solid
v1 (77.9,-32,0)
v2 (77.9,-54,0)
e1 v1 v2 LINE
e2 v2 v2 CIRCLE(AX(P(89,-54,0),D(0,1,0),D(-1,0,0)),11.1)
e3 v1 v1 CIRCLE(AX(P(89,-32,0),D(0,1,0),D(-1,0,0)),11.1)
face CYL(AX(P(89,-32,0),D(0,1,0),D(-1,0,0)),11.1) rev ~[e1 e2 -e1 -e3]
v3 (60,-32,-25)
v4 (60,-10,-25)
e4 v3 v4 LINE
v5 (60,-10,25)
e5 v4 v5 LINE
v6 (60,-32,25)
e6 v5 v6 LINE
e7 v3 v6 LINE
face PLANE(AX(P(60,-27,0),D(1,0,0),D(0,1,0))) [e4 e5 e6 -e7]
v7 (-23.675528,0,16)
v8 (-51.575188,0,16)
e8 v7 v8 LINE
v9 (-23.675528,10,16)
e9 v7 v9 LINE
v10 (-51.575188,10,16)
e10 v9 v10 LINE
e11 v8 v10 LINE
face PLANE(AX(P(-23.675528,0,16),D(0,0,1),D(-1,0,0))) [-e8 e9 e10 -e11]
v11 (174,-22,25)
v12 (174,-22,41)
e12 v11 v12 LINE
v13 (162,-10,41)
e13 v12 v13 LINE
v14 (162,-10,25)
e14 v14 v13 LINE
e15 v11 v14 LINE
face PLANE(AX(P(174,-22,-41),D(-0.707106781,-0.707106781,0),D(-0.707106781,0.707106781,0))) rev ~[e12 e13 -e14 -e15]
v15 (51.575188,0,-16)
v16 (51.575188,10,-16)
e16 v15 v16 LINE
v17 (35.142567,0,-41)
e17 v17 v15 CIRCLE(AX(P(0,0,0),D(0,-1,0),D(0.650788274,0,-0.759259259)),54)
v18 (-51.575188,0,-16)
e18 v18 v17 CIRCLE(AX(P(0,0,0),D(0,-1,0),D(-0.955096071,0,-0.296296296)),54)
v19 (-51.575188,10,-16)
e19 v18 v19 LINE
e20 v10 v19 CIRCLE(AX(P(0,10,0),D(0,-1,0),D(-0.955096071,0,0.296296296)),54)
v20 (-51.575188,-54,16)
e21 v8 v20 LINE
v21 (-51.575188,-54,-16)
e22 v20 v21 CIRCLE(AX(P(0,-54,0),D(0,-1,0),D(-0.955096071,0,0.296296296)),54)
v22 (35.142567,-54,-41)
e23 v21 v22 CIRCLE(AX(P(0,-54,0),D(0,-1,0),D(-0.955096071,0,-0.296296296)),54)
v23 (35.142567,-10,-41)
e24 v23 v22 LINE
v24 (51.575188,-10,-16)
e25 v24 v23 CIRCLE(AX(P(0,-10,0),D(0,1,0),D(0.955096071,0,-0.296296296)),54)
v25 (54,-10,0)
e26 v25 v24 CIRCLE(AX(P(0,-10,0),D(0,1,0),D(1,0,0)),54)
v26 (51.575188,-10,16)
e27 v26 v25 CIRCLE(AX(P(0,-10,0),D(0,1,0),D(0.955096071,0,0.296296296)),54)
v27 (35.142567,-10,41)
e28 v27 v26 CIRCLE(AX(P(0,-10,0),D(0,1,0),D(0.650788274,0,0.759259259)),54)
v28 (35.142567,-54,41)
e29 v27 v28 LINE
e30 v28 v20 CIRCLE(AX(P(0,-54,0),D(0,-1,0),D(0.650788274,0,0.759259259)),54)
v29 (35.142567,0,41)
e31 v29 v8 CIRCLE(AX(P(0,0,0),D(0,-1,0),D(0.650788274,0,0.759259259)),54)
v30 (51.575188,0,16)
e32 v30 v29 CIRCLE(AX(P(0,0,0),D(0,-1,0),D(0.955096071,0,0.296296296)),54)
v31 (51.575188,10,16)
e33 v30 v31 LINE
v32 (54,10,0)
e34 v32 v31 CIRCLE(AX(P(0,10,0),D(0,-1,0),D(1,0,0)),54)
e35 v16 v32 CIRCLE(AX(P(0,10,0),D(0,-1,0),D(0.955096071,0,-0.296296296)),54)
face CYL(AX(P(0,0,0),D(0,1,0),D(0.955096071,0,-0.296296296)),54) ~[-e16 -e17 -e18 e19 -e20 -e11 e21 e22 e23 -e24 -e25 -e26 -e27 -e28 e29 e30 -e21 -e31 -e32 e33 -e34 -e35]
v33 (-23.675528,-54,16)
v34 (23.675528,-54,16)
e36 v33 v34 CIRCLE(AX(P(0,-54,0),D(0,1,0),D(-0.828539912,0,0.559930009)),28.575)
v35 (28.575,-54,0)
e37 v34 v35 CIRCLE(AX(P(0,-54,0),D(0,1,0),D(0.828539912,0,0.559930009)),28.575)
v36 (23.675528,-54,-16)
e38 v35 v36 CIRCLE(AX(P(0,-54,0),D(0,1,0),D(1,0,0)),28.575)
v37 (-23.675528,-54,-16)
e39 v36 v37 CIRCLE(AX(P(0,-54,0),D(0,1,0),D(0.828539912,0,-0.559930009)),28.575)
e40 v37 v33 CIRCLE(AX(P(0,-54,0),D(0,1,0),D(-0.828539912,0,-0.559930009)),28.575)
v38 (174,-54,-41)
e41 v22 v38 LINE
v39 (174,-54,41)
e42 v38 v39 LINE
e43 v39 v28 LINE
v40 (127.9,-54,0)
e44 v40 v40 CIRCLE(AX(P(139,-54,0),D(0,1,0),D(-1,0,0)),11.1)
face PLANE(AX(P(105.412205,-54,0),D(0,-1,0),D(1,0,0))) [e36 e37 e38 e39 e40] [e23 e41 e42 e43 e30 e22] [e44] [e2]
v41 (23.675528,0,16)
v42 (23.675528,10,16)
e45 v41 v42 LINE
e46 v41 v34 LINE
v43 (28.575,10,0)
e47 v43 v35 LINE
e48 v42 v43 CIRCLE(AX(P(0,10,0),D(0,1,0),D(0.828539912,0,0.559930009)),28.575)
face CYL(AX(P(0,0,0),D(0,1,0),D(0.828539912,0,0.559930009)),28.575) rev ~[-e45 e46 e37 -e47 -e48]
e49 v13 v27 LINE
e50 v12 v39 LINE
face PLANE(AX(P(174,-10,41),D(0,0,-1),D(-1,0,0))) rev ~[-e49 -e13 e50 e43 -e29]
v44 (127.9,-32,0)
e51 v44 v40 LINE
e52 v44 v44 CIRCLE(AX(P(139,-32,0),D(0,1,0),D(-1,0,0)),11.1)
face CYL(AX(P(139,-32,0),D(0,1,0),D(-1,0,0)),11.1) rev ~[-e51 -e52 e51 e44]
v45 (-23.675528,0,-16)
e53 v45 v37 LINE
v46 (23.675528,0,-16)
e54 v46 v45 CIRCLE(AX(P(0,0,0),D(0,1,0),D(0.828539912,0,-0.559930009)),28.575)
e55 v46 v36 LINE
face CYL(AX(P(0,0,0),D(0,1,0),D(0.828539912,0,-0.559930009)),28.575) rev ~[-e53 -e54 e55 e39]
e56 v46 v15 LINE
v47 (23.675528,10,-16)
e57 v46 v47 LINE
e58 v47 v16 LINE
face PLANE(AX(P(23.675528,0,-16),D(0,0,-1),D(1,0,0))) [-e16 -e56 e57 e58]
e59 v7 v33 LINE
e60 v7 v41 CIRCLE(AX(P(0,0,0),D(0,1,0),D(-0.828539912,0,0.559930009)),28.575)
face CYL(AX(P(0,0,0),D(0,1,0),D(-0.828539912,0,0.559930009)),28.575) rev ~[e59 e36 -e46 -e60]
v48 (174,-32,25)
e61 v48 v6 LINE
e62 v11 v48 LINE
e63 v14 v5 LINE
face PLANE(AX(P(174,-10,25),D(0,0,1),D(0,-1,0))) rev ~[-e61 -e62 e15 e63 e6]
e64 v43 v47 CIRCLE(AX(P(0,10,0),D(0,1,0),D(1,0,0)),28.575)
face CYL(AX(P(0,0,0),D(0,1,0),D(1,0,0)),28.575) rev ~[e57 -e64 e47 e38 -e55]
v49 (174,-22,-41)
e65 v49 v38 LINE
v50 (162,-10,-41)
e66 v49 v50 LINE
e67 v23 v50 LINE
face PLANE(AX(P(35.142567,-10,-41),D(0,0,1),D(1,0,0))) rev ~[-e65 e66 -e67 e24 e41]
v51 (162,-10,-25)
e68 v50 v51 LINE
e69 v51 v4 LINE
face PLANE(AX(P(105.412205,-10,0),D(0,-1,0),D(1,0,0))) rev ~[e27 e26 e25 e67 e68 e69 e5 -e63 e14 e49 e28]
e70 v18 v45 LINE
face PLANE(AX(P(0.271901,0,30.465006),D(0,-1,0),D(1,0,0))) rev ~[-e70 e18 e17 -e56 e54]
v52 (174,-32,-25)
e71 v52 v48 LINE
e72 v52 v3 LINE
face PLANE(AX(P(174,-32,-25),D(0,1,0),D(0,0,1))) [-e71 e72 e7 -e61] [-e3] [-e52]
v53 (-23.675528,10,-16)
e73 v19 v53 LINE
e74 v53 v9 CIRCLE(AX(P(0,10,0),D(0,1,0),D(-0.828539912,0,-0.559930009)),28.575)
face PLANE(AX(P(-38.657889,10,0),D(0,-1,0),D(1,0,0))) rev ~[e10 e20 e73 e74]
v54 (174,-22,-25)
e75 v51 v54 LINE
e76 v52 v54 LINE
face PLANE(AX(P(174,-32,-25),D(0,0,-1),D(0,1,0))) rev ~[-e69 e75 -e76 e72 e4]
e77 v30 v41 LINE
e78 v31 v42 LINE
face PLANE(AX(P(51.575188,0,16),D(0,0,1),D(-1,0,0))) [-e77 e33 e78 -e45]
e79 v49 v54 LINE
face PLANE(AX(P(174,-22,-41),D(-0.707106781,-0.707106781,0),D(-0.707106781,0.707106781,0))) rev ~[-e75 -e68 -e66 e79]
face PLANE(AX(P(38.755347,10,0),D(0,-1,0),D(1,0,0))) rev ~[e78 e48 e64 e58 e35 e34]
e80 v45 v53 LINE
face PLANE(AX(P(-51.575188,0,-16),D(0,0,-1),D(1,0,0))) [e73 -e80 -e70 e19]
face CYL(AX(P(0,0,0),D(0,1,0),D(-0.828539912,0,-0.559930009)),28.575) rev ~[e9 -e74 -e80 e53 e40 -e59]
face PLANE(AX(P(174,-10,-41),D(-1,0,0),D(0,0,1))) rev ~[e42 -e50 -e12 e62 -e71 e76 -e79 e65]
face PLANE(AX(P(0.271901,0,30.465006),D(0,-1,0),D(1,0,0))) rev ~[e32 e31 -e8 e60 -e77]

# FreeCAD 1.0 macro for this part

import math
import FreeCAD as App
import Part
import Sketcher

V = App.Vector
Q = App.Units.Quantity


def add_polygon(sketch, points):
    """Adds a closed chain of lines whose ends are joined by coincident constraints."""
    first, n = sketch.GeometryCount, len(points)
    for a, b in zip(points, points[1:] + points[:1]):
        sketch.addGeometry(Part.LineSegment(App.Vector(*a, 0), App.Vector(*b, 0)), False)
    for i in range(n):
        sketch.addConstraint(Sketcher.Constraint("Coincident", first + i, 2, first + (i + 1) % n, 1))

doc = App.newDocument("Part")
body = doc.addObject("PartDesign::Body", "Body")

sketch1 = body.newObject("Sketcher::SketchObject", "Sketch")
sketch1.AttachmentSupport = (doc.getObject("XZ_Plane"), [""])
sketch1.MapMode = "FlatFace"
sketch1.addGeometry([
    Part.ArcOfCircle(Part.Circle(V(0, 0, 0), V(0, 0, 1), 54), math.radians(-163), math.radians(-49)),
    Part.ArcOfCircle(Part.Circle(V(0, 0, 0), V(0, 0, 1), 54), math.radians(-49), math.radians(-17)),
    Part.ArcOfCircle(Part.Circle(V(0, 0, 0), V(0, 0, 1), 54), math.radians(-17.24), math.radians(0)),
    Part.ArcOfCircle(Part.Circle(V(0, 0, 0), V(0, 0, 1), 54), math.radians(0), math.radians(17.24)),
    Part.ArcOfCircle(Part.Circle(V(0, 0, 0), V(0, 0, 1), 54), math.radians(17), math.radians(49)),
    Part.ArcOfCircle(Part.Circle(V(0, 0, 0), V(0, 0, 1), 54), math.radians(49), math.radians(163)),
    Part.ArcOfCircle(Part.Circle(V(0, 0, 0), V(0, 0, 1), 54), math.radians(163), math.radians(197)),
    Part.ArcOfCircle(Part.Circle(V(0, 0, 0), V(0, 0, 1), 29), math.radians(34), math.radians(146)),
    Part.ArcOfCircle(Part.Circle(V(0, 0, 0), V(0, 0, 1), 29), math.radians(0), math.radians(34)),
    Part.ArcOfCircle(Part.Circle(V(0, 0, 0), V(0, 0, 1), 29), math.radians(-34), math.radians(0)),
    Part.ArcOfCircle(Part.Circle(V(0, 0, 0), V(0, 0, 1), 29), math.radians(-146), math.radians(-34)),
    Part.ArcOfCircle(Part.Circle(V(0, 0, 0), V(0, 0, 1), 29), math.radians(146), math.radians(214)),
], False)
sketch1.addConstraint([
    Sketcher.Constraint("Tangent", 0, 2, 1, 1),
    Sketcher.Constraint("Tangent", 1, 2, 2, 1),
    Sketcher.Constraint("Tangent", 2, 2, 3, 1),
    Sketcher.Constraint("Tangent", 3, 2, 4, 1),
    Sketcher.Constraint("Tangent", 4, 2, 5, 1),
    Sketcher.Constraint("Tangent", 5, 2, 6, 1),
    Sketcher.Constraint("Tangent", 6, 2, 0, 1),
    Sketcher.Constraint("Tangent", 7, 1, 8, 2),
    Sketcher.Constraint("Tangent", 8, 1, 9, 2),
    Sketcher.Constraint("Tangent", 9, 1, 10, 2),
    Sketcher.Constraint("Tangent", 10, 1, 11, 2),
    Sketcher.Constraint("Tangent", 11, 1, 7, 2),
    Sketcher.Constraint("Coincident", 0, 3, -1, 1),
    Sketcher.Constraint("Coincident", 2, 3, -1, 1),
    Sketcher.Constraint("Coincident", 4, 3, -1, 1),
    Sketcher.Constraint("Coincident", 7, 3, -1, 1),
    Sketcher.Constraint("Coincident", 9, 3, -1, 1),
    Sketcher.Constraint("PointOnObject", 2, 2, -1),
    Sketcher.Constraint("PointOnObject", 8, 1, -1),
    Sketcher.Constraint("Horizontal", 3, 2, 5, 2),
    Sketcher.Constraint("Horizontal", 1, 2, 6, 2),
    Sketcher.Constraint("Horizontal", 5, 2, 7, 1),
    Sketcher.Constraint("Horizontal", 6, 2, 9, 1),
    Sketcher.Constraint("Horizontal", 9, 1, 10, 1),
    Sketcher.Constraint("Horizontal", 7, 1, 11, 1),
    Sketcher.Constraint("Vertical", 1, 2, 3, 2),
    Sketcher.Constraint("Vertical", 0, 2, 4, 2),
    Sketcher.Constraint("Radius", 0, Q("54 mm")),
    Sketcher.Constraint("DistanceY", 0, 2, -1, 1, Q("41 mm")),
    Sketcher.Constraint("DistanceY", 1, 2, -1, 1, Q("16 mm")),
    Sketcher.Constraint("Radius", 7, Q("28.575 mm")),
])
pad1 = body.newObject("PartDesign::Pad", "Pad")
pad1.Profile = sketch1
pad1.Length = 54

sketch2 = body.newObject("Sketcher::SketchObject", "Sketch001")
sketch2.AttachmentSupport = (doc.getObject("XZ_Plane"), [""])
sketch2.MapMode = "FlatFace"
sketch2.addGeometry([
    Part.ArcOfCircle(Part.Circle(V(0, 0, 0), V(0, 0, 1), 29), math.radians(146), math.radians(214)),
    Part.LineSegment(V(-24, 16, 0), V(-52, 16, 0)),
    Part.ArcOfCircle(Part.Circle(V(0, 0, 0), V(0, 0, 1), 54), math.radians(163), math.radians(197)),
    Part.LineSegment(V(-52, -16, 0), V(-24, -16, 0)),
    Part.ArcOfCircle(Part.Circle(V(0, 0, 0), V(0, 0, 1), 29), math.radians(0), math.radians(34)),
    Part.ArcOfCircle(Part.Circle(V(0, 0, 0), V(0, 0, 1), 29), math.radians(-34), math.radians(0)),
    Part.LineSegment(V(24, -16, 0), V(52, -16, 0)),
    Part.ArcOfCircle(Part.Circle(V(0, 0, 0), V(0, 0, 1), 54), math.radians(-17.24), math.radians(0)),
    Part.ArcOfCircle(Part.Circle(V(0, 0, 0), V(0, 0, 1), 54), math.radians(0), math.radians(17.24)),
    Part.LineSegment(V(52, 16, 0), V(24, 16, 0)),
], False)
sketch2.addConstraint([
    Sketcher.Constraint("Coincident", 0, 1, 1, 1),
    Sketcher.Constraint("Coincident", 1, 2, 2, 1),
    Sketcher.Constraint("Coincident", 2, 2, 3, 1),
    Sketcher.Constraint("Coincident", 3, 2, 0, 2),
    Sketcher.Constraint("Tangent", 4, 1, 5, 2),
    Sketcher.Constraint("Coincident", 5, 1, 6, 1),
    Sketcher.Constraint("Coincident", 6, 2, 7, 1),
    Sketcher.Constraint("Tangent", 7, 2, 8, 1),
    Sketcher.Constraint("Coincident", 8, 2, 9, 1),
    Sketcher.Constraint("Coincident", 9, 2, 4, 2),
    Sketcher.Constraint("Horizontal", 1),
    Sketcher.Constraint("Horizontal", 3),
    Sketcher.Constraint("Horizontal", 6),
    Sketcher.Constraint("Horizontal", 9),
    Sketcher.Constraint("Coincident", 0, 3, -1, 1),
    Sketcher.Constraint("Coincident", 2, 3, -1, 1),
    Sketcher.Constraint("Coincident", 4, 3, -1, 1),
    Sketcher.Constraint("Coincident", 7, 3, -1, 1),
    Sketcher.Constraint("Equal", 0, 4),
    Sketcher.Constraint("Equal", 4, 5),
    Sketcher.Constraint("Equal", 2, 7),
    Sketcher.Constraint("Equal", 7, 8),
    Sketcher.Constraint("PointOnObject", 4, 1, -1),
    Sketcher.Constraint("PointOnObject", 7, 2, -1),
    Sketcher.Constraint("Horizontal", 3, 2, 5, 1),
    Sketcher.Constraint("Horizontal", 1, 2, 8, 2),
    Sketcher.Constraint("Vertical", 1, 2, 2, 2),
    Sketcher.Constraint("Radius", 2, Q("54 mm")),
    Sketcher.Constraint("DistanceY", -1, 1, 0, 1, Q("16 mm")),
    Sketcher.Constraint("Radius", 0, Q("28.575 mm")),
])
pad2 = body.newObject("PartDesign::Pad", "Pad001")
pad2.Profile = sketch2
pad2.Length = 10
pad2.Reversed = True

sketch3 = body.newObject("Sketcher::SketchObject", "Sketch002")
sketch3.AttachmentSupport = (doc.getObject("XZ_Plane"), [""])
sketch3.MapMode = "FlatFace"
sketch3.AttachmentOffset = App.Placement(V(0, 0, 10), App.Rotation())
sketch3.addGeometry([
    Part.ArcOfCircle(Part.Circle(V(0, 0, 0), V(0, 0, 1), 54), math.radians(17), math.radians(49)),
    Part.ArcOfCircle(Part.Circle(V(0, 0, 0), V(0, 0, 1), 54), math.radians(0), math.radians(17.24)),
    Part.ArcOfCircle(Part.Circle(V(0, 0, 0), V(0, 0, 1), 54), math.radians(-17.24), math.radians(0)),
    Part.ArcOfCircle(Part.Circle(V(0, 0, 0), V(0, 0, 1), 54), math.radians(-49), math.radians(-17)),
    Part.LineSegment(V(35, -41, 0), V(174, -41, 0)),
    Part.LineSegment(V(174, -41, 0), V(174, 41, 0)),
    Part.LineSegment(V(174, 41, 0), V(35, 41, 0)),
], False)
sketch3.addConstraint([
    Sketcher.Constraint("Tangent", 0, 1, 1, 2),
    Sketcher.Constraint("Tangent", 1, 1, 2, 2),
    Sketcher.Constraint("Tangent", 2, 1, 3, 2),
    Sketcher.Constraint("Coincident", 3, 1, 4, 1),
    Sketcher.Constraint("Coincident", 4, 2, 5, 1),
    Sketcher.Constraint("Coincident", 5, 2, 6, 1),
    Sketcher.Constraint("Coincident", 6, 2, 0, 2),
    Sketcher.Constraint("Horizontal", 4),
    Sketcher.Constraint("Vertical", 5),
    Sketcher.Constraint("Horizontal", 6),
    Sketcher.Constraint("Coincident", 0, 3, -1, 1),
    Sketcher.Constraint("Coincident", 2, 3, -1, 1),
    Sketcher.Constraint("Equal", 2, 3),
    Sketcher.Constraint("PointOnObject", 1, 1, -1),
    Sketcher.Constraint("Vertical", 0, 1, 2, 1),
    Sketcher.Constraint("Vertical", 3, 1, 6, 2),
    Sketcher.Constraint("Radius", 0, Q("54 mm")),
    Sketcher.Constraint("DistanceY", 5, 1, 5, 2, Q("82 mm")),
    Sketcher.Constraint("DistanceY", -1, 1, 0, 1, Q("16 mm")),
    Sketcher.Constraint("DistanceX", -1, 1, 4, 2, Q("174 mm")),
])
pad3 = body.newObject("PartDesign::Pad", "Pad002")
pad3.Profile = sketch3
pad3.Length = 44

sketch4 = body.newObject("Sketcher::SketchObject", "Sketch003")
sketch4.AttachmentSupport = (doc.getObject("XY_Plane"), [""])
sketch4.MapMode = "FlatFace"
sketch4.AttachmentOffset = App.Placement(V(0, 0, -41), App.Rotation())
add_polygon(sketch4, [(174, -22), (162, -10), (174, -10)])
sketch4.addConstraint([
    Sketcher.Constraint("Horizontal", 1),
    Sketcher.Constraint("Vertical", 2),
    Sketcher.Constraint("Equal", 1, 2),
    Sketcher.Constraint("DistanceX", 1, 1, 1, 2, Q("12 mm")),
    Sketcher.Constraint("DistanceX", -1, 1, 0, 2, Q("162 mm")),
    Sketcher.Constraint("DistanceY", 0, 2, -1, 1, Q("10 mm")),
])
pocket1 = body.newObject("PartDesign::Pocket", "Pocket")
pocket1.Profile = sketch4
pocket1.Type = "ThroughAll"
pocket1.Reversed = True

sketch5 = body.newObject("Sketcher::SketchObject", "Sketch004")
sketch5.AttachmentSupport = (doc.getObject("YZ_Plane"), [""])
sketch5.MapMode = "FlatFace"
sketch5.AttachmentOffset = App.Placement(V(0, 0, 174), App.Rotation())
add_polygon(sketch5, [(-32, 25), (-32, -25), (-10, -25), (-10, 25)])
sketch5.addConstraint([
    Sketcher.Constraint("Vertical", 0),
    Sketcher.Constraint("Horizontal", 1),
    Sketcher.Constraint("Vertical", 2),
    Sketcher.Constraint("Horizontal", 3),
    Sketcher.Constraint("DistanceX", 1, 1, 1, 2, Q("22 mm")),
    Sketcher.Constraint("DistanceY", 0, 2, 0, 1, Q("50 mm")),
    Sketcher.Constraint("DistanceX", 0, 2, -1, 1, Q("32 mm")),
    Sketcher.Constraint("DistanceY", 0, 2, -1, 1, Q("25 mm")),
])
pocket2 = body.newObject("PartDesign::Pocket", "Pocket001")
pocket2.Profile = sketch5
pocket2.Length = 114

sketch6 = body.newObject("Sketcher::SketchObject", "Sketch005")
sketch6.AttachmentSupport = (doc.getObject("XZ_Plane"), [""])
sketch6.MapMode = "FlatFace"
sketch6.AttachmentOffset = App.Placement(V(0, 0, 32), App.Rotation())
sketch6.addGeometry([
    Part.Circle(V(139, 0, 0), V(0, 0, 1), 11),
    Part.Circle(V(89, 0, 0), V(0, 0, 1), 11),
], False)
sketch6.addConstraint([
    Sketcher.Constraint("Equal", 0, 1),
    Sketcher.Constraint("PointOnObject", 0, 3, -1),
    Sketcher.Constraint("PointOnObject", 1, 3, -1),
    Sketcher.Constraint("Diameter", 0, Q("22.2 mm")),
    Sketcher.Constraint("DistanceX", -1, 1, 0, 3, Q("139 mm")),
    Sketcher.Constraint("DistanceX", -1, 1, 1, 3, Q("89 mm")),
])
pocket3 = body.newObject("PartDesign::Pocket", "Pocket002")
pocket3.Profile = sketch6
pocket3.Type = "ThroughAll"
pocket3.Reversed = True

doc.recompute()
